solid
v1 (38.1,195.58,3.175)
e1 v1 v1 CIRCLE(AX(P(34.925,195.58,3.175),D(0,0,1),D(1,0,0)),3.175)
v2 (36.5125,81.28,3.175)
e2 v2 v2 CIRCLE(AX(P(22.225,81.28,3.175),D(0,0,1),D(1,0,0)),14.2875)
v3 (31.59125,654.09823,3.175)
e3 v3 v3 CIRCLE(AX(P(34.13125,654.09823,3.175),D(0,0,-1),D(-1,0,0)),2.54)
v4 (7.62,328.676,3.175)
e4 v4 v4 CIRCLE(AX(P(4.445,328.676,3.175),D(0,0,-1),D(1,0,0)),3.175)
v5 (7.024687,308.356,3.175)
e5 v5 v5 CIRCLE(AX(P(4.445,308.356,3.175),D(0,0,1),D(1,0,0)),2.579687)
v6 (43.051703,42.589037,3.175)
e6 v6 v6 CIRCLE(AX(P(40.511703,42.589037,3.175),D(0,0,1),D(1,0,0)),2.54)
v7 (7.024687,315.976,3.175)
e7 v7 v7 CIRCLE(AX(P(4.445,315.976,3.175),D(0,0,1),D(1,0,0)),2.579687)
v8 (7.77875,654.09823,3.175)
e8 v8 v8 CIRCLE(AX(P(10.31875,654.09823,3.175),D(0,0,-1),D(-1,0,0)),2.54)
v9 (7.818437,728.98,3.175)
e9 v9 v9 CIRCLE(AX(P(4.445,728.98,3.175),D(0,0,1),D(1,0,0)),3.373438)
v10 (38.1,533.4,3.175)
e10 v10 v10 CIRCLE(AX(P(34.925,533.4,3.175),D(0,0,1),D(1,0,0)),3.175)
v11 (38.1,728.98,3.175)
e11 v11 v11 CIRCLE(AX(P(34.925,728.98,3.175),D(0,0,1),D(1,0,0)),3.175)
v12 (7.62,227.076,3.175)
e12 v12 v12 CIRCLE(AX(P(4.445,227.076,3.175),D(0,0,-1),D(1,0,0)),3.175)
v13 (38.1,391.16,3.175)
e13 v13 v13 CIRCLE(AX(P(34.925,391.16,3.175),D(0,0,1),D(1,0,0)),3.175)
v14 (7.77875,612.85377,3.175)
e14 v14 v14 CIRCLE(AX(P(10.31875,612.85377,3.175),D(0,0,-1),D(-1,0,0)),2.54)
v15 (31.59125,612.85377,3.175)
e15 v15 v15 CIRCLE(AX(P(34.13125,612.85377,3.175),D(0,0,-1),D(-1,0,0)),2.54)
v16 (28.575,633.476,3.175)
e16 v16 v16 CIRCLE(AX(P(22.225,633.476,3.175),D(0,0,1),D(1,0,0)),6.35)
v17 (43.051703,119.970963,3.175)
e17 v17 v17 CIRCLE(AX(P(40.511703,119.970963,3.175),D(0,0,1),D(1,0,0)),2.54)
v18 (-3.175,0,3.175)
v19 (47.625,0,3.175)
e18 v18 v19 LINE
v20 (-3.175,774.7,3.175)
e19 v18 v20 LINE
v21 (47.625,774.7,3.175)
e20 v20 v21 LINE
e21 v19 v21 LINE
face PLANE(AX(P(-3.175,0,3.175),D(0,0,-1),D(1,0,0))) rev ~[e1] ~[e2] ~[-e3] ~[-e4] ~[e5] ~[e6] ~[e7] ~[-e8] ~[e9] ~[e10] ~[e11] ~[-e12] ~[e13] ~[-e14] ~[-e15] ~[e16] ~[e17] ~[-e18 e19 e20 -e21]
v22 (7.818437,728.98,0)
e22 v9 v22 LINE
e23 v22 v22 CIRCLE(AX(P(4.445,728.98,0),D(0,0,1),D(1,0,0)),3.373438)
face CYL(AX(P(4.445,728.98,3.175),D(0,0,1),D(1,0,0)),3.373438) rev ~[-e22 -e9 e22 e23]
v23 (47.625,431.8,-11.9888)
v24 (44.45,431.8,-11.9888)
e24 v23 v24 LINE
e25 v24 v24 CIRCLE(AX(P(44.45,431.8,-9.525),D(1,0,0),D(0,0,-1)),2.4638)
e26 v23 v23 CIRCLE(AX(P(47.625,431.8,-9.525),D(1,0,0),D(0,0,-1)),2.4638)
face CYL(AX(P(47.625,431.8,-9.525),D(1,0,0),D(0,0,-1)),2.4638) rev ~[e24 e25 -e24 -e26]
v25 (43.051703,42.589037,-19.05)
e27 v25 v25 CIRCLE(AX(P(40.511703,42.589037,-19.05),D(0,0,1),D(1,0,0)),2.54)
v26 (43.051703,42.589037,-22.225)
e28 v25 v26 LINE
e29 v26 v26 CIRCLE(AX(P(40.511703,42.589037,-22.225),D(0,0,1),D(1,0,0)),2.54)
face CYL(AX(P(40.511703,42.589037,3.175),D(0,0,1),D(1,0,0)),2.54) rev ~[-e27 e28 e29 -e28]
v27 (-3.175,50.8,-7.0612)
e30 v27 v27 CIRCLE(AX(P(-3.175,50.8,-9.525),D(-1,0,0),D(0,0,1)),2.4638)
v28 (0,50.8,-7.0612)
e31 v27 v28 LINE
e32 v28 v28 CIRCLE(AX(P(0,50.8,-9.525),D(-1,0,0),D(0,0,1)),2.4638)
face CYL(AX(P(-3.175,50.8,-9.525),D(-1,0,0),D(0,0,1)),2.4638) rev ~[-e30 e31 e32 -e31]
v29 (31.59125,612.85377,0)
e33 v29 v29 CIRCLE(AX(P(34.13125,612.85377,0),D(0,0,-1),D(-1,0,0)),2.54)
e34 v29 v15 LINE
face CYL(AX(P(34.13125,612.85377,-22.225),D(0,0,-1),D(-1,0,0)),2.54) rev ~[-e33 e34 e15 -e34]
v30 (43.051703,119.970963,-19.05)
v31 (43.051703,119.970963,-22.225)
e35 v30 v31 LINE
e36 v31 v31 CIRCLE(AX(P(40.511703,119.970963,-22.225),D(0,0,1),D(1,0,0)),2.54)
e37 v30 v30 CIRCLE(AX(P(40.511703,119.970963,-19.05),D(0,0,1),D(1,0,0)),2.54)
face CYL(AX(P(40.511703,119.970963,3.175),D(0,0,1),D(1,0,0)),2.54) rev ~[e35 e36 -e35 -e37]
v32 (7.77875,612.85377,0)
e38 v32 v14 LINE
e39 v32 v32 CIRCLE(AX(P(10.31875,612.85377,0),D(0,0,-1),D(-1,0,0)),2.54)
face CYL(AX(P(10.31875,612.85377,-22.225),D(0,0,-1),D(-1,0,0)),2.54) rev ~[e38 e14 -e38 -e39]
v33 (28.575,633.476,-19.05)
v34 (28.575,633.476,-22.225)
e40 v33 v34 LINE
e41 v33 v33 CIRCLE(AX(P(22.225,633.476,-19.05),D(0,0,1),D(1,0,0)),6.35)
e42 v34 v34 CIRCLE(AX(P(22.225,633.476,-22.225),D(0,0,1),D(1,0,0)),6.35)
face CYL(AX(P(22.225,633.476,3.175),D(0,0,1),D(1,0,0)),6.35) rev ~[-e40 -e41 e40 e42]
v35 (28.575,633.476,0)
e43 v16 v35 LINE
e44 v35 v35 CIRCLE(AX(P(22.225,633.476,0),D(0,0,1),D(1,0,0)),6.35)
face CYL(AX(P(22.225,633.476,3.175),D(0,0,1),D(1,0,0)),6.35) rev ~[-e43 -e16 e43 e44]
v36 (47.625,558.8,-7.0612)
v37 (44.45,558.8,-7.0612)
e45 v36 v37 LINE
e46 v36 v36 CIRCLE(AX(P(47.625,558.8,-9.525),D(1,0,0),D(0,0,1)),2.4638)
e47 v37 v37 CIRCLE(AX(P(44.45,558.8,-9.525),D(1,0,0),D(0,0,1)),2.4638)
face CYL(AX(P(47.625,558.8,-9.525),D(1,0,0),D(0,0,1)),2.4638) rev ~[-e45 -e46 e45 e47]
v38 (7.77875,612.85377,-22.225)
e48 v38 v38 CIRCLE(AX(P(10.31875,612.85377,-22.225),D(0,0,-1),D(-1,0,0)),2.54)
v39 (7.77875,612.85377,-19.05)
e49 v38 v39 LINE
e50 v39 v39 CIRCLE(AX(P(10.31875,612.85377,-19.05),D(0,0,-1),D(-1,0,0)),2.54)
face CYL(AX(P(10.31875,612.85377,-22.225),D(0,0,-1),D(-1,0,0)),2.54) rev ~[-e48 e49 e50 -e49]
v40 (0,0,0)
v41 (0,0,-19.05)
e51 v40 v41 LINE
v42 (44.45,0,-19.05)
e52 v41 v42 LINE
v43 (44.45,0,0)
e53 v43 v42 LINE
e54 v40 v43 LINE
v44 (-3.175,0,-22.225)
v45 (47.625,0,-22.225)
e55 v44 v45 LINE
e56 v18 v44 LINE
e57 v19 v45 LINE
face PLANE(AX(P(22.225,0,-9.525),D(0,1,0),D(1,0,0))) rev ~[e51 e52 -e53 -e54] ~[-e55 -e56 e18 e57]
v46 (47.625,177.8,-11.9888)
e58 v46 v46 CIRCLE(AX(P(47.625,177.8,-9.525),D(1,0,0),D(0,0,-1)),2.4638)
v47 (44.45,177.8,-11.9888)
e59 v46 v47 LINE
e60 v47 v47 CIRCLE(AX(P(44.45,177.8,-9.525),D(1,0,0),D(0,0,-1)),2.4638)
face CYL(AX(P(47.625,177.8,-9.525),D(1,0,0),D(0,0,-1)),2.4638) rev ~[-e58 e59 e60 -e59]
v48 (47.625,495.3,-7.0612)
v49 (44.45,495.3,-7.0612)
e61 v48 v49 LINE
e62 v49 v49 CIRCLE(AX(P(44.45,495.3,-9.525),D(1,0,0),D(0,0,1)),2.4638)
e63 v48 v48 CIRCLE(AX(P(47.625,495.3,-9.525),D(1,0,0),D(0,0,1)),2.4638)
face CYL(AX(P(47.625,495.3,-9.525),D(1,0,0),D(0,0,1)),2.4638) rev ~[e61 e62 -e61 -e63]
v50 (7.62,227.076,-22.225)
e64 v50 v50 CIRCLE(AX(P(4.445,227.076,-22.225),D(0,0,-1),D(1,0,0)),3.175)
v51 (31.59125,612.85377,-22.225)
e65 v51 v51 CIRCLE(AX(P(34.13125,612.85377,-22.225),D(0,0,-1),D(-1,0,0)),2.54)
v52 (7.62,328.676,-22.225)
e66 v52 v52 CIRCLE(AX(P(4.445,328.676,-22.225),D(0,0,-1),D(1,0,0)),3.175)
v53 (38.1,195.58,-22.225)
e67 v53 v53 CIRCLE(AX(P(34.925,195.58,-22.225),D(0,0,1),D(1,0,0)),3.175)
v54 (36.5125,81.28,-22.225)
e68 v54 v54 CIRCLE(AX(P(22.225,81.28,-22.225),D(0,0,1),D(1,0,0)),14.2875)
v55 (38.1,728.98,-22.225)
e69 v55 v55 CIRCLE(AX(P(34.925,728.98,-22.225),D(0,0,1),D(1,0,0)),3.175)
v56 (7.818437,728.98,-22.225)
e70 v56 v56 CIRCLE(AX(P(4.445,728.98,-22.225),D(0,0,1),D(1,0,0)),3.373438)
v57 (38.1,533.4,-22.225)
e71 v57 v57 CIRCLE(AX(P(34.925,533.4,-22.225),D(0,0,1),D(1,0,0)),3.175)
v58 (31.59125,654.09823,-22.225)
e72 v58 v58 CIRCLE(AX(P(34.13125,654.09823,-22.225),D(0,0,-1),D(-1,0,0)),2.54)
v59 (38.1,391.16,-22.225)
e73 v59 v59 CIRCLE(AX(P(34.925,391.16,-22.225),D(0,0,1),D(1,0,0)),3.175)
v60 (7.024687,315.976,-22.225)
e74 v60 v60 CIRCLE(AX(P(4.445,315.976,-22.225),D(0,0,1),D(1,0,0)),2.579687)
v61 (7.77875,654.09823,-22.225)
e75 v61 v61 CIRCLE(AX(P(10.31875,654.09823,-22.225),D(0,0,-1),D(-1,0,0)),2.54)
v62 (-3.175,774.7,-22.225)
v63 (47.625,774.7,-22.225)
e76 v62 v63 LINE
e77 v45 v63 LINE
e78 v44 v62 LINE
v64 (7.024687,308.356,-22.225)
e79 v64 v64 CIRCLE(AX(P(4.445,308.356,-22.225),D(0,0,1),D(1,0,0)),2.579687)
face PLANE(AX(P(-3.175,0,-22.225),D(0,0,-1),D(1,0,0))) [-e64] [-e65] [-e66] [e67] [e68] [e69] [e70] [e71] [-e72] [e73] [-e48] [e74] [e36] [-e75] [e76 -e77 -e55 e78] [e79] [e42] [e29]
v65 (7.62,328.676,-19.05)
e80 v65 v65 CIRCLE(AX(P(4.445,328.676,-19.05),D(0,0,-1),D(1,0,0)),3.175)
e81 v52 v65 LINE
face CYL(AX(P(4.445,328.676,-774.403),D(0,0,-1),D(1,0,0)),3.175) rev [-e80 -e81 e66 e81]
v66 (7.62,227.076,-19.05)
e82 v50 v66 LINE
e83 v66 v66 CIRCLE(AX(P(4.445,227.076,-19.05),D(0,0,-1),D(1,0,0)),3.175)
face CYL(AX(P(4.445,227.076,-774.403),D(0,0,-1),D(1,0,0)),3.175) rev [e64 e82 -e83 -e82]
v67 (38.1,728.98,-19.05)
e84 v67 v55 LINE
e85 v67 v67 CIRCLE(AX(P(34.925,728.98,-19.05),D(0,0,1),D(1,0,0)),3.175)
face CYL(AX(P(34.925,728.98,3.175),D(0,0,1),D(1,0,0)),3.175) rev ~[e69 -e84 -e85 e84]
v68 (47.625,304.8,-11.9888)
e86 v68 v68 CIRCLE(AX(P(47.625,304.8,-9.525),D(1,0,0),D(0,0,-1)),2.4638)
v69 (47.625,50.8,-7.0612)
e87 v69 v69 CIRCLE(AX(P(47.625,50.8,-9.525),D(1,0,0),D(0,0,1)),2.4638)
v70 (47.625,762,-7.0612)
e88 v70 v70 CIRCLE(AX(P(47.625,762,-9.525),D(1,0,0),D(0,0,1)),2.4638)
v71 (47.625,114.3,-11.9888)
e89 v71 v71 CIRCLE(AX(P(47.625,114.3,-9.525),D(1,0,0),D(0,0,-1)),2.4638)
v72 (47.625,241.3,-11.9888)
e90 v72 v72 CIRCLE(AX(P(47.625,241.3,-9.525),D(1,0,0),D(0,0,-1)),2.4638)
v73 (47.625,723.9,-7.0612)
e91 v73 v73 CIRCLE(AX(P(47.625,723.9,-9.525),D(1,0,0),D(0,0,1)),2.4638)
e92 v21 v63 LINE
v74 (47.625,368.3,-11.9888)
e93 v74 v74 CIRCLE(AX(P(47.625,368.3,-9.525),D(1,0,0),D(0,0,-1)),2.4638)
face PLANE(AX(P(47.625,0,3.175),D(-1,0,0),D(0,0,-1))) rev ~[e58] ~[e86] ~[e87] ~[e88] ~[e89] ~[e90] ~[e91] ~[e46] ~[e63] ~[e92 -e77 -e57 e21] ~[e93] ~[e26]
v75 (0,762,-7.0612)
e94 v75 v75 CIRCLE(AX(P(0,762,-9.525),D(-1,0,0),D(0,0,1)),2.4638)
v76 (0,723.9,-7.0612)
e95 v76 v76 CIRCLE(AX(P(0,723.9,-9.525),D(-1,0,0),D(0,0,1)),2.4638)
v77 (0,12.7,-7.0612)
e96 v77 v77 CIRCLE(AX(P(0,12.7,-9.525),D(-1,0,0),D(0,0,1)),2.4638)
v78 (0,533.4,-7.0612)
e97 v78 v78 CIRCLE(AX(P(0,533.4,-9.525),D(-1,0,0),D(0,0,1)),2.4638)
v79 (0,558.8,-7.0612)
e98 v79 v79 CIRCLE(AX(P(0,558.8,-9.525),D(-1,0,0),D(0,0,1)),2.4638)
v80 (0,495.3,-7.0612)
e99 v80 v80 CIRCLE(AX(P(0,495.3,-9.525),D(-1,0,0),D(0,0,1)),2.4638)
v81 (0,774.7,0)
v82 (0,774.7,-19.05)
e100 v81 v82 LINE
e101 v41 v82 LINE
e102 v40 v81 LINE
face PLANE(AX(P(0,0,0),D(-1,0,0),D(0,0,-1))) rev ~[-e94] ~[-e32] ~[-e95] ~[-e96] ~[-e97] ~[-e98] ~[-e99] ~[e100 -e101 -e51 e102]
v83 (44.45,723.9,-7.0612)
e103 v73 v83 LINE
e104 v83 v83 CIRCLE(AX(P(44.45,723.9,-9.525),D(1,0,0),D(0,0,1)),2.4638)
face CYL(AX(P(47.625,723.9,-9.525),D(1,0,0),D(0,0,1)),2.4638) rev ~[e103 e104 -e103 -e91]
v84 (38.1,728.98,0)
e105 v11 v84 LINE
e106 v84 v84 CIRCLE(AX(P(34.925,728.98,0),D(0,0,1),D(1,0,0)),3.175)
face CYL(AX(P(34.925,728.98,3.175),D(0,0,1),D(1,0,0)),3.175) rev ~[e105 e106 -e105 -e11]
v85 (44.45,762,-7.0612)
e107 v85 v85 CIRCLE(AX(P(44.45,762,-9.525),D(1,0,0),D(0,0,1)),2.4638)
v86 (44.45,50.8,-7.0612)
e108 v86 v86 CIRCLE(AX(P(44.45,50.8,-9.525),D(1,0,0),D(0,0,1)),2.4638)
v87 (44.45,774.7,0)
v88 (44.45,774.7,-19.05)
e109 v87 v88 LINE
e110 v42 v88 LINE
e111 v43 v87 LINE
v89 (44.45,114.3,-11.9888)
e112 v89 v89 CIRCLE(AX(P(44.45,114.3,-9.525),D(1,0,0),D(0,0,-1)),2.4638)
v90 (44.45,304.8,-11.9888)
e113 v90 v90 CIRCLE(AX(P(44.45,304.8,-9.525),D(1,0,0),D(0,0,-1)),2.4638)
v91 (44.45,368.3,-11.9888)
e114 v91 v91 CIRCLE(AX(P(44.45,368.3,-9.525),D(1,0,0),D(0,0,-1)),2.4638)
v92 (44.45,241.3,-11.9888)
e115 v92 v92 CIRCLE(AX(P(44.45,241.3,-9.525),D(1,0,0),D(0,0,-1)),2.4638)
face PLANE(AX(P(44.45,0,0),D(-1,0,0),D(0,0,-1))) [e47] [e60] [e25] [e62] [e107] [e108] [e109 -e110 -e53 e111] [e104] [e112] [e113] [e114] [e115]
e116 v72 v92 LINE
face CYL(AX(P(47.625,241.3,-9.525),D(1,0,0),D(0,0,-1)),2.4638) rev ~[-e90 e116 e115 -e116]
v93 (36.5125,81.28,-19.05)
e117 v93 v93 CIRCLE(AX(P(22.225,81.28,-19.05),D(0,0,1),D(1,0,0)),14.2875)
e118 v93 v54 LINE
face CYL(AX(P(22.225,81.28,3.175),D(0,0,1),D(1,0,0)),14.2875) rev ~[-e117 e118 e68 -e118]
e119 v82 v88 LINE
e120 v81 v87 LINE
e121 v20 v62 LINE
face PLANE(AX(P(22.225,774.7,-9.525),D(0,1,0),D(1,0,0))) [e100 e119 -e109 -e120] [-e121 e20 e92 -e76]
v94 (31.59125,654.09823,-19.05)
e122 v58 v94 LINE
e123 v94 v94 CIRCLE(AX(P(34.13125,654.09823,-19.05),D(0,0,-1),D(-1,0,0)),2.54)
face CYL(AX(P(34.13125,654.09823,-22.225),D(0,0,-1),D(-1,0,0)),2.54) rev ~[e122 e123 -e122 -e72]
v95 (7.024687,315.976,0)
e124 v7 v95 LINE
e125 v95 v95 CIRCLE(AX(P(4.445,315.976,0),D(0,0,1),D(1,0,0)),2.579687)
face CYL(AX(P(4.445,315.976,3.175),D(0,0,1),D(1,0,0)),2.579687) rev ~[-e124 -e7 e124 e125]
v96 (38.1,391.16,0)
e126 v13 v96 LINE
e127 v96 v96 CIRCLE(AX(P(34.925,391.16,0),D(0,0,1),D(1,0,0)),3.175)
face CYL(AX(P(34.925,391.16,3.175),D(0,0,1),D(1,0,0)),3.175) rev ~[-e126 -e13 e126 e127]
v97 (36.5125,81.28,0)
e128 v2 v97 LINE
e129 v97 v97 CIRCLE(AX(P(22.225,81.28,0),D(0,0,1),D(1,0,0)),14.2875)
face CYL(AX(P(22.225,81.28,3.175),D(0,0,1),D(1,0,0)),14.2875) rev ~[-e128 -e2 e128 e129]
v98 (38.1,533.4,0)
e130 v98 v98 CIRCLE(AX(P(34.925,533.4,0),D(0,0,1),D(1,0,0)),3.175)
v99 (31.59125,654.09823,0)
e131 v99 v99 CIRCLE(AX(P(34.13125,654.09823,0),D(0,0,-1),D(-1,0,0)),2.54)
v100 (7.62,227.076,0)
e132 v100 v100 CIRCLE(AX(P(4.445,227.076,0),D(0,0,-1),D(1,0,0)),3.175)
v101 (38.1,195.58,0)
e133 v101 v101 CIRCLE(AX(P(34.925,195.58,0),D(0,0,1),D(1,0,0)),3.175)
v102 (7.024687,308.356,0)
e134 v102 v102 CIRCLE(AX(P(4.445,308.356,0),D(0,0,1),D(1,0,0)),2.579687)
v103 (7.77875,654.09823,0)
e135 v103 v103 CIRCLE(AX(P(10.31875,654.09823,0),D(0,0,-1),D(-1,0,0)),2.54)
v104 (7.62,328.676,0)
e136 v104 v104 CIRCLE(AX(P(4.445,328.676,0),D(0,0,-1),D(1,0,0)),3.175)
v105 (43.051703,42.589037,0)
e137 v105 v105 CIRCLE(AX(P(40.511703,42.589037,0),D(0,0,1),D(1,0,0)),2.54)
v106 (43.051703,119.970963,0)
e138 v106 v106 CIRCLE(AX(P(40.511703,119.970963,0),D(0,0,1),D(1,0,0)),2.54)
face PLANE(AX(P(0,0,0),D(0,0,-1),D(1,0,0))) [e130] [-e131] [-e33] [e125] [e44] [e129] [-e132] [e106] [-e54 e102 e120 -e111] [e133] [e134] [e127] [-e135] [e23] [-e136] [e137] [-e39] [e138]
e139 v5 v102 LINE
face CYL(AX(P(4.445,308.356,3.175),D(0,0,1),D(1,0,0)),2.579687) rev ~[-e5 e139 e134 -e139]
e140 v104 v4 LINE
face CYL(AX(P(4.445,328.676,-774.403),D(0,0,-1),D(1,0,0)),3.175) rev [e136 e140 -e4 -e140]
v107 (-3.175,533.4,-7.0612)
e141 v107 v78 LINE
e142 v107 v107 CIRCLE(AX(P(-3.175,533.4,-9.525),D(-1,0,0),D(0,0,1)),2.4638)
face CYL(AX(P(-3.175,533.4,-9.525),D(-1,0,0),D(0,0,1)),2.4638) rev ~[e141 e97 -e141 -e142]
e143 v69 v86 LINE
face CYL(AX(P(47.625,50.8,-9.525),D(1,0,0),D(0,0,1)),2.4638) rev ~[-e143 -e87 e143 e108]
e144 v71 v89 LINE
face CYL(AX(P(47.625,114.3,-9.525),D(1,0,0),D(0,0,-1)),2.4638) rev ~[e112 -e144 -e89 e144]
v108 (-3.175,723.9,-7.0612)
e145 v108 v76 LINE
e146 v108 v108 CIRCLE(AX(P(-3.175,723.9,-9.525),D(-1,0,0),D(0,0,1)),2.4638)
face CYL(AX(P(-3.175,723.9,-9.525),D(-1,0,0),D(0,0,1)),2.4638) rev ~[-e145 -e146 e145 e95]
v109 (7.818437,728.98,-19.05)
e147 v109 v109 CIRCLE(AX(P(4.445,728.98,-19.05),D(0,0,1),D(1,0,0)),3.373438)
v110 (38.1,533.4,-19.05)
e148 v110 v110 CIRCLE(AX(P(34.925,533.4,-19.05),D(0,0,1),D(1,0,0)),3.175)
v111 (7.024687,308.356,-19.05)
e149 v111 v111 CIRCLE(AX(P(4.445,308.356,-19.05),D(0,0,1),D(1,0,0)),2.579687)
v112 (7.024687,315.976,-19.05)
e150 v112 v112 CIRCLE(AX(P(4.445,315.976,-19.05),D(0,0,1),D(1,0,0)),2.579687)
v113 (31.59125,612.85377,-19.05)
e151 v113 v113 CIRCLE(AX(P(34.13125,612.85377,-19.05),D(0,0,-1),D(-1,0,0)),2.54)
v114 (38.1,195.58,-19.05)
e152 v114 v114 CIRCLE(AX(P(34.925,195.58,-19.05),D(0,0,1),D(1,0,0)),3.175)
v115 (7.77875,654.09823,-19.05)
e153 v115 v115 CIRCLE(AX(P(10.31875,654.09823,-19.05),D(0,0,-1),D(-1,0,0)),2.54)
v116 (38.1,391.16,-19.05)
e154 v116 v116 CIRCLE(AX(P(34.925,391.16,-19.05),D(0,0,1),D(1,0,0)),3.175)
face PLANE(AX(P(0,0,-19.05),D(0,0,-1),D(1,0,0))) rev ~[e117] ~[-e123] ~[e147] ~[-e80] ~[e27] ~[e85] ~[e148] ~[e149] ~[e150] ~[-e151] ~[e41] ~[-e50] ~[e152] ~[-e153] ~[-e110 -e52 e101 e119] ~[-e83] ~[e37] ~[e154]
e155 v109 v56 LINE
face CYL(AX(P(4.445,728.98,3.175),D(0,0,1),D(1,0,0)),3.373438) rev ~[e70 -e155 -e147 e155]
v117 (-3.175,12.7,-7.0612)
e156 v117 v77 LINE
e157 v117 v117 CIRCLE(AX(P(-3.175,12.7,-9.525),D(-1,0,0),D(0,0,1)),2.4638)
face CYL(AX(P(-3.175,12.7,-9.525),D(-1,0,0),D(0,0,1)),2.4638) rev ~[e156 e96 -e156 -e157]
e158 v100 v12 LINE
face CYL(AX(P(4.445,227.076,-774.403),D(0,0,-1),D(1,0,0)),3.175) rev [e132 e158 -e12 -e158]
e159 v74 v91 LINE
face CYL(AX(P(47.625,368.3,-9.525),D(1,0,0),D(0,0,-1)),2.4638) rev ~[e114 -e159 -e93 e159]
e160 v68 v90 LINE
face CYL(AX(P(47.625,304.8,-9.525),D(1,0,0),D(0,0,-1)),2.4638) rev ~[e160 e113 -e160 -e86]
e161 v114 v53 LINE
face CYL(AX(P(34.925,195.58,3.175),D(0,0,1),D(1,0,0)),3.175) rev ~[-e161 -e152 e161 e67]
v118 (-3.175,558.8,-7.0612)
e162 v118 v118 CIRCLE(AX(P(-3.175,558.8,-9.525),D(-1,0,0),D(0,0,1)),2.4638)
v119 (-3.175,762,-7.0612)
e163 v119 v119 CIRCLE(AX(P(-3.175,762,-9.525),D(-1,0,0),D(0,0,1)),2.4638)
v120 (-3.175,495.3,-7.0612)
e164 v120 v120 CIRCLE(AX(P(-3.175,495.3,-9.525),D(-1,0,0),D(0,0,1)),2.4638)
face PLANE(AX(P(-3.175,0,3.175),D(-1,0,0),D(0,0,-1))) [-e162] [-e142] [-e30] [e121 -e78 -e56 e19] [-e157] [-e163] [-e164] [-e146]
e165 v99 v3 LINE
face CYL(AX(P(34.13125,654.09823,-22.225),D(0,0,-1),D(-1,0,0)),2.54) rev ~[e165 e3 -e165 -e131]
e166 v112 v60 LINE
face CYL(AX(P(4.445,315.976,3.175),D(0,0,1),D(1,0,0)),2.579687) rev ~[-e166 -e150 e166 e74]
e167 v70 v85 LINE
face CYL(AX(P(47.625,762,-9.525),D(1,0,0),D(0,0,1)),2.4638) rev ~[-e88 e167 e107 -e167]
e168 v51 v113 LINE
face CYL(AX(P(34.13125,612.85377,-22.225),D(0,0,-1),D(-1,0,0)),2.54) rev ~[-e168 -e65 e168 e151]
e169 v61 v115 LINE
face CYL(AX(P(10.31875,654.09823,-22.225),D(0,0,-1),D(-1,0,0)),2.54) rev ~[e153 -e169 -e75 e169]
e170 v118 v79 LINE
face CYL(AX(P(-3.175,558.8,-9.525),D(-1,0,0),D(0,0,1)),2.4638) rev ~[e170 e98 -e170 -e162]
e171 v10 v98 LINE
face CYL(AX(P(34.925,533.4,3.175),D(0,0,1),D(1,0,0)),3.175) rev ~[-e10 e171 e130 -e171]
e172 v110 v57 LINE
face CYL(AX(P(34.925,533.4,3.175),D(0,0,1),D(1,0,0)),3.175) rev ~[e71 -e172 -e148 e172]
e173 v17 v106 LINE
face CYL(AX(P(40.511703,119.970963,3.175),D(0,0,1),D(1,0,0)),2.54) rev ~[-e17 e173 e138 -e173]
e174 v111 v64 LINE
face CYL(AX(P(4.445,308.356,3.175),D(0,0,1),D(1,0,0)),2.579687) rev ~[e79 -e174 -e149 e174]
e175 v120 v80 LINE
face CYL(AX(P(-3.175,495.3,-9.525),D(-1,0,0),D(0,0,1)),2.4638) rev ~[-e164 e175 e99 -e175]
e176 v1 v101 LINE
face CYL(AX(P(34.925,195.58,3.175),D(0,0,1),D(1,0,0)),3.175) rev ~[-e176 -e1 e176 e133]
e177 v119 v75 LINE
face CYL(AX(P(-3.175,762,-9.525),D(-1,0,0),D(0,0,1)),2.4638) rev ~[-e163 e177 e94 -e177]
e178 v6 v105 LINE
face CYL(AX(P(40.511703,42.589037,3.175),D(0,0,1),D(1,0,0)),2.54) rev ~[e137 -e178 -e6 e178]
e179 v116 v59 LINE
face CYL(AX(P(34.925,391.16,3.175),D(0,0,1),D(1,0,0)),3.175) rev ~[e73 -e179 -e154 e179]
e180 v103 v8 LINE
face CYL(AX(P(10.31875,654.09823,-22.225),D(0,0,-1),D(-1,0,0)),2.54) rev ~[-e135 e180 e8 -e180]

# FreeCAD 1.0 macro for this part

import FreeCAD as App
import Part
import Sketcher

V = App.Vector
Q = App.Units.Quantity

doc = App.newDocument("Part")
params = doc.addObject("Spreadsheet::Sheet", "Params")
for row, (alias, value) in enumerate([
    ("sketch1_width", "2 in"),
    ("sketch1_height", "1 in"),
    ("sketch1_width2", "1.75 in"),
    ("sketch1_height2", "0.75 in"),
    ("pad1_length", "30.5 in"),
    ("sketch2_diameter", "1.125 in"),
    ("sketch3_diameter", "0.5 in"),
    ("sketch4_diameter", "0.2 in"),
    ("sketch5_diameter", "0.2 in"),
    ("sketch6_diameter", "0.25 in"),
    ("sketch7_diameter", "0.203125 in"),
    ("sketch8_diameter", "0.25 in"),
    ("sketch8_diameter2", "0.265625 in"),
    ("sketch9_diameter", "0.194 in"),
    ("sketch10_diameter", "0.194 in"),
    ("sketch11_diameter", "0.194 in"),
    ("sketch12_diameter", "0.194 in"),
    ("sketch13_diameter", "0.194 in"),
    ("sketch14_diameter", "0.194 in"),
    ("sketch15_diameter", "0.194 in"),
    ("sketch16_diameter", "0.194 in"),
    ("sketch17_diameter", "0.194 in"),
    ("sketch18_diameter", "0.194 in"),
    ("sketch19_diameter", "0.194 in"),
    ("sketch20_diameter", "0.194 in"),
    ("sketch21_diameter", "0.194 in"),
    ("sketch22_diameter", "0.194 in"),
    ("sketch23_diameter", "0.194 in"),
    ("sketch24_diameter", "0.194 in"),
    ("sketch25_diameter", "0.194 in"),
    ("sketch26_diameter", "0.194 in"),
], start=1):
    params.set(f"A{row}", alias)
    params.set(f"B{row}", "=" + value)
    params.setAlias(f"B{row}", alias)

body = doc.addObject("PartDesign::Body", "Body")

# Sketch on XZ plane
sketch1 = doc.addObject("Sketcher::SketchObject", "Sketch")
body.addObject(sketch1)
sketch1.AttachmentSupport = (doc.XZ_Plane, [""])
sketch1.MapMode = "FlatFace"
sketch1.addGeometry(Part.LineSegment(V(-3.175, -22.225, 0), V(-3.175, 3.175, 0)), False)
sketch1.addGeometry(Part.LineSegment(V(-3.175, 3.175, 0), V(47.625, 3.175, 0)), False)
sketch1.addGeometry(Part.LineSegment(V(47.625, 3.175, 0), V(47.625, -22.225, 0)), False)
sketch1.addGeometry(Part.LineSegment(V(47.625, -22.225, 0), V(-3.175, -22.225, 0)), False)
sketch1.addGeometry(Part.LineSegment(V(44.45, 0, 0), V(0, 0, 0)), False)
sketch1.addGeometry(Part.LineSegment(V(0, 0, 0), V(0, -19.05, 0)), False)
sketch1.addGeometry(Part.LineSegment(V(0, -19.05, 0), V(44.45, -19.05, 0)), False)
sketch1.addGeometry(Part.LineSegment(V(44.45, -19.05, 0), V(44.45, 0, 0)), False)
sketch1.addConstraint(Sketcher.Constraint("Coincident", 0, 2, 1, 1))
sketch1.addConstraint(Sketcher.Constraint("Coincident", 1, 2, 2, 1))
sketch1.addConstraint(Sketcher.Constraint("Coincident", 2, 2, 3, 1))
sketch1.addConstraint(Sketcher.Constraint("Coincident", 3, 2, 0, 1))
sketch1.addConstraint(Sketcher.Constraint("Coincident", 4, 2, 5, 1))
sketch1.addConstraint(Sketcher.Constraint("Coincident", 5, 2, 6, 1))
sketch1.addConstraint(Sketcher.Constraint("Coincident", 6, 2, 7, 1))
sketch1.addConstraint(Sketcher.Constraint("Coincident", 7, 2, 4, 1))
sketch1.addConstraint(Sketcher.Constraint("Vertical", 0))
sketch1.addConstraint(Sketcher.Constraint("Horizontal", 1))
sketch1.addConstraint(Sketcher.Constraint("Vertical", 2))
sketch1.addConstraint(Sketcher.Constraint("Horizontal", 3))
sketch1.addConstraint(Sketcher.Constraint("Horizontal", 4))
sketch1.addConstraint(Sketcher.Constraint("Vertical", 5))
sketch1.addConstraint(Sketcher.Constraint("Horizontal", 6))
sketch1.addConstraint(Sketcher.Constraint("Vertical", 7))
sketch1.addConstraint(Sketcher.Constraint("Coincident", 4, 2, -1, 1))
sketch1.addConstraint(Sketcher.Constraint("DistanceX", 1, 1, 1, 2, Q("2 in")))
sketch1.addConstraint(Sketcher.Constraint("DistanceY", 0, 1, 0, 2, Q("1 in")))
sketch1.addConstraint(Sketcher.Constraint("DistanceX", 4, 2, 4, 1, Q("1.75 in")))
sketch1.addConstraint(Sketcher.Constraint("DistanceY", 5, 2, 5, 1, Q("0.75 in")))
sketch1.addConstraint(Sketcher.Constraint("DistanceX", 0, 2, -1, 1, Q("0.125 in")))
sketch1.addConstraint(Sketcher.Constraint("DistanceY", -1, 1, 0, 2, Q("0.125 in")))
sketch1.setExpression("Constraints[17]", "Params.sketch1_width")
sketch1.setExpression("Constraints[18]", "Params.sketch1_height")
sketch1.setExpression("Constraints[19]", "Params.sketch1_width2")
sketch1.setExpression("Constraints[20]", "Params.sketch1_height2")
pad1 = doc.addObject("PartDesign::Pad", "Pad")
body.addObject(pad1)
pad1.Profile = sketch1
pad1.setExpression("Length", "Params.pad1_length")
pad1.Reversed = True

# Sketch on XY plane
sketch2 = doc.addObject("Sketcher::SketchObject", "Sketch001")
body.addObject(sketch2)
sketch2.AttachmentSupport = (doc.XY_Plane, [""])
sketch2.MapMode = "FlatFace"
sketch2.AttachmentOffset = App.Placement(V(0, 0, 0.125 * 25.4), App.Rotation())
sketch2.addGeometry(Part.Circle(V(22.225, 81.28, 0), V(0, 0, 1), 14.2875), False)
sketch2.addConstraint(Sketcher.Constraint("Diameter", 0, Q("1.125 in")))
sketch2.addConstraint(Sketcher.Constraint("DistanceY", -1, 1, 0, 3, Q("3.2 in")))
sketch2.addConstraint(Sketcher.Constraint("DistanceX", -1, 1, 0, 3, Q("0.875 in")))
sketch2.setExpression("Constraints[0]", "Params.sketch2_diameter")
pocket1 = doc.addObject("PartDesign::Pocket", "Pocket")
body.addObject(pocket1)
pocket1.Profile = sketch2
pocket1.Type = "ThroughAll"

# Sketch on XY plane
sketch3 = doc.addObject("Sketcher::SketchObject", "Sketch002")
body.addObject(sketch3)
sketch3.AttachmentSupport = (doc.XY_Plane, [""])
sketch3.MapMode = "FlatFace"
sketch3.AttachmentOffset = App.Placement(V(0, 0, 0.125 * 25.4), App.Rotation())
sketch3.addGeometry(Part.Circle(V(22.225, 633.476, 0), V(0, 0, 1), 6.35), False)
sketch3.addConstraint(Sketcher.Constraint("Diameter", 0, Q("0.5 in")))
sketch3.addConstraint(Sketcher.Constraint("DistanceY", -1, 1, 0, 3, Q("24.94 in")))
sketch3.addConstraint(Sketcher.Constraint("DistanceX", -1, 1, 0, 3, Q("0.875 in")))
sketch3.setExpression("Constraints[0]", "Params.sketch3_diameter")
pocket2 = doc.addObject("PartDesign::Pocket", "Pocket001")
body.addObject(pocket2)
pocket2.Profile = sketch3
pocket2.Type = "ThroughAll"

# Sketch on XY plane
sketch4 = doc.addObject("Sketcher::SketchObject", "Sketch003")
body.addObject(sketch4)
sketch4.AttachmentSupport = (doc.XY_Plane, [""])
sketch4.MapMode = "FlatFace"
sketch4.AttachmentOffset = App.Placement(V(0, 0, 0.125 * 25.4), App.Rotation())
sketch4.addGeometry(Part.Circle(V(40.511703, 42.589037, 0), V(0, 0, 1), 2.54), False)
sketch4.addGeometry(Part.Circle(V(40.511703, 119.970963, 0), V(0, 0, 1), 2.54), False)
sketch4.addConstraint(Sketcher.Constraint("Equal", 0, 1))
sketch4.addConstraint(Sketcher.Constraint("Vertical", 0, 3, 1, 3))
sketch4.addConstraint(Sketcher.Constraint("Diameter", 0, Q("0.2 in")))
sketch4.addConstraint(Sketcher.Constraint("DistanceX", -1, 1, 0, 3, Q("40.511703 mm")))
sketch4.addConstraint(Sketcher.Constraint("DistanceY", -1, 1, 0, 3, Q("42.589037 mm")))
sketch4.addConstraint(Sketcher.Constraint("DistanceY", -1, 1, 1, 3, Q("119.970963 mm")))
sketch4.setExpression("Constraints[2]", "Params.sketch4_diameter")
pocket3 = doc.addObject("PartDesign::Pocket", "Pocket002")
body.addObject(pocket3)
pocket3.Profile = sketch4
pocket3.Type = "ThroughAll"

# Sketch on XY plane
sketch5 = doc.addObject("Sketcher::SketchObject", "Sketch004")
body.addObject(sketch5)
sketch5.AttachmentSupport = (doc.XY_Plane, [""])
sketch5.MapMode = "FlatFace"
sketch5.AttachmentOffset = App.Placement(V(0, 0, -0.875 * 25.4), App.Rotation())
sketch5.addGeometry(Part.Circle(V(10.31875, 612.85377, 0), V(0, 0, 1), 2.54), False)
sketch5.addGeometry(Part.Circle(V(34.13125, 612.85377, 0), V(0, 0, 1), 2.54), False)
sketch5.addGeometry(Part.Circle(V(10.31875, 654.09823, 0), V(0, 0, 1), 2.54), False)
sketch5.addGeometry(Part.Circle(V(34.13125, 654.09823, 0), V(0, 0, 1), 2.54), False)
sketch5.addConstraint(Sketcher.Constraint("Equal", 0, 1))
sketch5.addConstraint(Sketcher.Constraint("Equal", 1, 2))
sketch5.addConstraint(Sketcher.Constraint("Equal", 2, 3))
sketch5.addConstraint(Sketcher.Constraint("Horizontal", 0, 3, 1, 3))
sketch5.addConstraint(Sketcher.Constraint("Horizontal", 2, 3, 3, 3))
sketch5.addConstraint(Sketcher.Constraint("Vertical", 0, 3, 2, 3))
sketch5.addConstraint(Sketcher.Constraint("Vertical", 1, 3, 3, 3))
sketch5.addConstraint(Sketcher.Constraint("Diameter", 0, Q("0.2 in")))
sketch5.addConstraint(Sketcher.Constraint("DistanceX", -1, 1, 0, 3, Q("0.40625 in")))
sketch5.addConstraint(Sketcher.Constraint("DistanceX", -1, 1, 1, 3, Q("1.34375 in")))
sketch5.addConstraint(Sketcher.Constraint("DistanceY", -1, 1, 0, 3, Q("612.85377 mm")))
sketch5.addConstraint(Sketcher.Constraint("DistanceY", -1, 1, 2, 3, Q("654.09823 mm")))
sketch5.setExpression("Constraints[7]", "Params.sketch5_diameter")
pocket4 = doc.addObject("PartDesign::Pocket", "Pocket003")
body.addObject(pocket4)
pocket4.Profile = sketch5
pocket4.Type = "ThroughAll"
pocket4.Reversed = True

# Sketch on XY plane
sketch6 = doc.addObject("Sketcher::SketchObject", "Sketch005")
body.addObject(sketch6)
sketch6.AttachmentSupport = (doc.XY_Plane, [""])
sketch6.MapMode = "FlatFace"
sketch6.AttachmentOffset = App.Placement(V(0, 0, 0.125 * 25.4), App.Rotation())
sketch6.addGeometry(Part.Circle(V(4.445, 227.076, 0), V(0, 0, 1), 3.175), False)
sketch6.addGeometry(Part.Circle(V(4.445, 328.676, 0), V(0, 0, 1), 3.175), False)
sketch6.addConstraint(Sketcher.Constraint("Equal", 0, 1))
sketch6.addConstraint(Sketcher.Constraint("Vertical", 0, 3, 1, 3))
sketch6.addConstraint(Sketcher.Constraint("Diameter", 0, Q("0.25 in")))
sketch6.addConstraint(Sketcher.Constraint("DistanceY", 0, 3, 1, 3, Q("4 in")))
sketch6.addConstraint(Sketcher.Constraint("DistanceY", -1, 1, 0, 3, Q("8.94 in")))
sketch6.addConstraint(Sketcher.Constraint("DistanceX", -1, 1, 0, 3, Q("0.175 in")))
sketch6.setExpression("Constraints[2]", "Params.sketch6_diameter")
pocket5 = doc.addObject("PartDesign::Pocket", "Pocket004")
body.addObject(pocket5)
pocket5.Profile = sketch6
pocket5.Type = "ThroughAll"
pocket5.Midplane = True

# Sketch on XY plane
sketch7 = doc.addObject("Sketcher::SketchObject", "Sketch006")
body.addObject(sketch7)
sketch7.AttachmentSupport = (doc.XY_Plane, [""])
sketch7.MapMode = "FlatFace"
sketch7.AttachmentOffset = App.Placement(V(0, 0, 0.125 * 25.4), App.Rotation())
sketch7.addGeometry(Part.Circle(V(4.445, 315.976, 0), V(0, 0, 1), 2.579687), False)
sketch7.addGeometry(Part.Circle(V(4.445, 308.356, 0), V(0, 0, 1), 2.579687), False)
sketch7.addConstraint(Sketcher.Constraint("Equal", 0, 1))
sketch7.addConstraint(Sketcher.Constraint("Vertical", 0, 3, 1, 3))
sketch7.addConstraint(Sketcher.Constraint("Diameter", 0, Q("0.203125 in")))
sketch7.addConstraint(Sketcher.Constraint("DistanceY", 1, 3, 0, 3, Q("0.3 in")))
sketch7.addConstraint(Sketcher.Constraint("DistanceY", -1, 1, 0, 3, Q("12.44 in")))
sketch7.addConstraint(Sketcher.Constraint("DistanceX", -1, 1, 0, 3, Q("0.175 in")))
sketch7.setExpression("Constraints[2]", "Params.sketch7_diameter")
pocket6 = doc.addObject("PartDesign::Pocket", "Pocket005")
body.addObject(pocket6)
pocket6.Profile = sketch7
pocket6.Type = "ThroughAll"

# Sketch on XY plane
sketch8 = doc.addObject("Sketcher::SketchObject", "Sketch007")
body.addObject(sketch8)
sketch8.AttachmentSupport = (doc.XY_Plane, [""])
sketch8.MapMode = "FlatFace"
sketch8.AttachmentOffset = App.Placement(V(0, 0, 0.125 * 25.4), App.Rotation())
sketch8.addGeometry(Part.Circle(V(34.925, 195.58, 0), V(0, 0, 1), 3.175), False)
sketch8.addGeometry(Part.Circle(V(34.925, 391.16, 0), V(0, 0, 1), 3.175), False)
sketch8.addGeometry(Part.Circle(V(34.925, 533.4, 0), V(0, 0, 1), 3.175), False)
sketch8.addGeometry(Part.Circle(V(34.925, 728.98, 0), V(0, 0, 1), 3.175), False)
sketch8.addGeometry(Part.Circle(V(4.445, 728.98, 0), V(0, 0, 1), 3.373438), False)
sketch8.addConstraint(Sketcher.Constraint("Equal", 0, 1))
sketch8.addConstraint(Sketcher.Constraint("Equal", 1, 2))
sketch8.addConstraint(Sketcher.Constraint("Equal", 2, 3))
sketch8.addConstraint(Sketcher.Constraint("Horizontal", 3, 3, 4, 3))
sketch8.addConstraint(Sketcher.Constraint("Vertical", 0, 3, 1, 3))
sketch8.addConstraint(Sketcher.Constraint("Vertical", 1, 3, 2, 3))
sketch8.addConstraint(Sketcher.Constraint("Vertical", 2, 3, 3, 3))
sketch8.addConstraint(Sketcher.Constraint("Diameter", 0, Q("0.25 in")))
sketch8.addConstraint(Sketcher.Constraint("Diameter", 4, Q("0.265625 in")))
sketch8.addConstraint(Sketcher.Constraint("DistanceY", -1, 1, 2, 3, Q("21 in")))
sketch8.addConstraint(Sketcher.Constraint("DistanceY", 0, 3, 3, 3, Q("21 in")))
sketch8.addConstraint(Sketcher.Constraint("DistanceY", -1, 1, 0, 3, Q("7.7 in")))
sketch8.addConstraint(Sketcher.Constraint("DistanceY", -1, 1, 1, 3, Q("15.4 in")))
sketch8.addConstraint(Sketcher.Constraint("DistanceX", 4, 3, 3, 3, Q("1.2 in")))
sketch8.addConstraint(Sketcher.Constraint("DistanceX", -1, 1, 0, 3, Q("1.375 in")))
sketch8.setExpression("Constraints[7]", "Params.sketch8_diameter")
sketch8.setExpression("Constraints[8]", "Params.sketch8_diameter2")
pocket7 = doc.addObject("PartDesign::Pocket", "Pocket006")
body.addObject(pocket7)
pocket7.Profile = sketch8
pocket7.Type = "ThroughAll"

# Sketch on YZ plane
sketch9 = doc.addObject("Sketcher::SketchObject", "Sketch008")
body.addObject(sketch9)
sketch9.AttachmentSupport = (doc.YZ_Plane, [""])
sketch9.MapMode = "FlatFace"
sketch9.AttachmentOffset = App.Placement(V(0, 0, -0.125 * 25.4), App.Rotation())
sketch9.addGeometry(Part.Circle(V(762, -9.525, 0), V(0, 0, 1), 2.4638), False)
sketch9.addConstraint(Sketcher.Constraint("Diameter", 0, Q("0.194 in")))
sketch9.addConstraint(Sketcher.Constraint("DistanceX", -1, 1, 0, 3, Q("30 in")))
sketch9.addConstraint(Sketcher.Constraint("DistanceY", 0, 3, -1, 1, Q("0.375 in")))
sketch9.setExpression("Constraints[0]", "Params.sketch9_diameter")
pocket8 = doc.addObject("PartDesign::Pocket", "Pocket007")
body.addObject(pocket8)
pocket8.Profile = sketch9
pocket8.Type = "UpToFirst"
pocket8.Reversed = True

# Sketch on YZ plane
sketch10 = doc.addObject("Sketcher::SketchObject", "Sketch009")
body.addObject(sketch10)
sketch10.AttachmentSupport = (doc.YZ_Plane, [""])
sketch10.MapMode = "FlatFace"
sketch10.AttachmentOffset = App.Placement(V(0, 0, -0.125 * 25.4), App.Rotation())
sketch10.addGeometry(Part.Circle(V(723.9, -9.525, 0), V(0, 0, 1), 2.4638), False)
sketch10.addConstraint(Sketcher.Constraint("Diameter", 0, Q("0.194 in")))
sketch10.addConstraint(Sketcher.Constraint("DistanceX", -1, 1, 0, 3, Q("28.5 in")))
sketch10.addConstraint(Sketcher.Constraint("DistanceY", 0, 3, -1, 1, Q("0.375 in")))
sketch10.setExpression("Constraints[0]", "Params.sketch10_diameter")
pocket9 = doc.addObject("PartDesign::Pocket", "Pocket008")
body.addObject(pocket9)
pocket9.Profile = sketch10
pocket9.Type = "UpToFirst"
pocket9.Reversed = True

# Sketch on YZ plane
sketch11 = doc.addObject("Sketcher::SketchObject", "Sketch010")
body.addObject(sketch11)
sketch11.AttachmentSupport = (doc.YZ_Plane, [""])
sketch11.MapMode = "FlatFace"
sketch11.AttachmentOffset = App.Placement(V(0, 0, -0.125 * 25.4), App.Rotation())
sketch11.addGeometry(Part.Circle(V(558.8, -9.525, 0), V(0, 0, 1), 2.4638), False)
sketch11.addConstraint(Sketcher.Constraint("Diameter", 0, Q("0.194 in")))
sketch11.addConstraint(Sketcher.Constraint("DistanceX", -1, 1, 0, 3, Q("22 in")))
sketch11.addConstraint(Sketcher.Constraint("DistanceY", 0, 3, -1, 1, Q("0.375 in")))
sketch11.setExpression("Constraints[0]", "Params.sketch11_diameter")
pocket10 = doc.addObject("PartDesign::Pocket", "Pocket009")
body.addObject(pocket10)
pocket10.Profile = sketch11
pocket10.Type = "UpToFirst"
pocket10.Reversed = True

# Sketch on YZ plane
sketch12 = doc.addObject("Sketcher::SketchObject", "Sketch011")
body.addObject(sketch12)
sketch12.AttachmentSupport = (doc.YZ_Plane, [""])
sketch12.MapMode = "FlatFace"
sketch12.AttachmentOffset = App.Placement(V(0, 0, -0.125 * 25.4), App.Rotation())
sketch12.addGeometry(Part.Circle(V(533.4, -9.525, 0), V(0, 0, 1), 2.4638), False)
sketch12.addConstraint(Sketcher.Constraint("Diameter", 0, Q("0.194 in")))
sketch12.addConstraint(Sketcher.Constraint("DistanceX", -1, 1, 0, 3, Q("21 in")))
sketch12.addConstraint(Sketcher.Constraint("DistanceY", 0, 3, -1, 1, Q("0.375 in")))
sketch12.setExpression("Constraints[0]", "Params.sketch12_diameter")
pocket11 = doc.addObject("PartDesign::Pocket", "Pocket010")
body.addObject(pocket11)
pocket11.Profile = sketch12
pocket11.Type = "UpToFirst"
pocket11.Reversed = True

# Sketch on YZ plane
sketch13 = doc.addObject("Sketcher::SketchObject", "Sketch012")
body.addObject(sketch13)
sketch13.AttachmentSupport = (doc.YZ_Plane, [""])
sketch13.MapMode = "FlatFace"
sketch13.AttachmentOffset = App.Placement(V(0, 0, -0.125 * 25.4), App.Rotation())
sketch13.addGeometry(Part.Circle(V(495.3, -9.525, 0), V(0, 0, 1), 2.4638), False)
sketch13.addConstraint(Sketcher.Constraint("Diameter", 0, Q("0.194 in")))
sketch13.addConstraint(Sketcher.Constraint("DistanceX", -1, 1, 0, 3, Q("19.5 in")))
sketch13.addConstraint(Sketcher.Constraint("DistanceY", 0, 3, -1, 1, Q("0.375 in")))
sketch13.setExpression("Constraints[0]", "Params.sketch13_diameter")
pocket12 = doc.addObject("PartDesign::Pocket", "Pocket011")
body.addObject(pocket12)
pocket12.Profile = sketch13
pocket12.Type = "UpToFirst"
pocket12.Reversed = True

# Sketch on YZ plane
sketch14 = doc.addObject("Sketcher::SketchObject", "Sketch013")
body.addObject(sketch14)
sketch14.AttachmentSupport = (doc.YZ_Plane, [""])
sketch14.MapMode = "FlatFace"
sketch14.AttachmentOffset = App.Placement(V(0, 0, -0.125 * 25.4), App.Rotation())
sketch14.addGeometry(Part.Circle(V(50.8, -9.525, 0), V(0, 0, 1), 2.4638), False)
sketch14.addConstraint(Sketcher.Constraint("Diameter", 0, Q("0.194 in")))
sketch14.addConstraint(Sketcher.Constraint("DistanceX", -1, 1, 0, 3, Q("2 in")))
sketch14.addConstraint(Sketcher.Constraint("DistanceY", 0, 3, -1, 1, Q("0.375 in")))
sketch14.setExpression("Constraints[0]", "Params.sketch14_diameter")
pocket13 = doc.addObject("PartDesign::Pocket", "Pocket012")
body.addObject(pocket13)
pocket13.Profile = sketch14
pocket13.Type = "UpToFirst"
pocket13.Reversed = True

# Sketch on YZ plane
sketch15 = doc.addObject("Sketcher::SketchObject", "Sketch014")
body.addObject(sketch15)
sketch15.AttachmentSupport = (doc.YZ_Plane, [""])
sketch15.MapMode = "FlatFace"
sketch15.AttachmentOffset = App.Placement(V(0, 0, -0.125 * 25.4), App.Rotation())
sketch15.addGeometry(Part.Circle(V(12.7, -9.525, 0), V(0, 0, 1), 2.4638), False)
sketch15.addConstraint(Sketcher.Constraint("Diameter", 0, Q("0.194 in")))
sketch15.addConstraint(Sketcher.Constraint("DistanceX", -1, 1, 0, 3, Q("0.5 in")))
sketch15.addConstraint(Sketcher.Constraint("DistanceY", 0, 3, -1, 1, Q("0.375 in")))
sketch15.setExpression("Constraints[0]", "Params.sketch15_diameter")
pocket14 = doc.addObject("PartDesign::Pocket", "Pocket013")
body.addObject(pocket14)
pocket14.Profile = sketch15
pocket14.Type = "UpToFirst"
pocket14.Reversed = True

# Sketch on YZ plane
sketch16 = doc.addObject("Sketcher::SketchObject", "Sketch015")
body.addObject(sketch16)
sketch16.AttachmentSupport = (doc.YZ_Plane, [""])
sketch16.MapMode = "FlatFace"
sketch16.AttachmentOffset = App.Placement(V(0, 0, 1.875 * 25.4), App.Rotation())
sketch16.addGeometry(Part.Circle(V(50.8, -9.525, 0), V(0, 0, 1), 2.4638), False)
sketch16.addConstraint(Sketcher.Constraint("Diameter", 0, Q("0.194 in")))
sketch16.addConstraint(Sketcher.Constraint("DistanceX", -1, 1, 0, 3, Q("2 in")))
sketch16.addConstraint(Sketcher.Constraint("DistanceY", 0, 3, -1, 1, Q("0.375 in")))
sketch16.setExpression("Constraints[0]", "Params.sketch16_diameter")
pocket15 = doc.addObject("PartDesign::Pocket", "Pocket014")
body.addObject(pocket15)
pocket15.Profile = sketch16
pocket15.Type = "UpToFirst"

# Sketch on YZ plane
sketch17 = doc.addObject("Sketcher::SketchObject", "Sketch016")
body.addObject(sketch17)
sketch17.AttachmentSupport = (doc.YZ_Plane, [""])
sketch17.MapMode = "FlatFace"
sketch17.AttachmentOffset = App.Placement(V(0, 0, 1.875 * 25.4), App.Rotation())
sketch17.addGeometry(Part.Circle(V(114.3, -9.525, 0), V(0, 0, 1), 2.4638), False)
sketch17.addConstraint(Sketcher.Constraint("Diameter", 0, Q("0.194 in")))
sketch17.addConstraint(Sketcher.Constraint("DistanceX", -1, 1, 0, 3, Q("4.5 in")))
sketch17.addConstraint(Sketcher.Constraint("DistanceY", 0, 3, -1, 1, Q("0.375 in")))
sketch17.setExpression("Constraints[0]", "Params.sketch17_diameter")
pocket16 = doc.addObject("PartDesign::Pocket", "Pocket015")
body.addObject(pocket16)
pocket16.Profile = sketch17
pocket16.Type = "UpToFirst"

# Sketch on YZ plane
sketch18 = doc.addObject("Sketcher::SketchObject", "Sketch017")
body.addObject(sketch18)
sketch18.AttachmentSupport = (doc.YZ_Plane, [""])
sketch18.MapMode = "FlatFace"
sketch18.AttachmentOffset = App.Placement(V(0, 0, 1.875 * 25.4), App.Rotation())
sketch18.addGeometry(Part.Circle(V(177.8, -9.525, 0), V(0, 0, 1), 2.4638), False)
sketch18.addConstraint(Sketcher.Constraint("Diameter", 0, Q("0.194 in")))
sketch18.addConstraint(Sketcher.Constraint("DistanceX", -1, 1, 0, 3, Q("7 in")))
sketch18.addConstraint(Sketcher.Constraint("DistanceY", 0, 3, -1, 1, Q("0.375 in")))
sketch18.setExpression("Constraints[0]", "Params.sketch18_diameter")
pocket17 = doc.addObject("PartDesign::Pocket", "Pocket016")
body.addObject(pocket17)
pocket17.Profile = sketch18
pocket17.Type = "UpToFirst"

# Sketch on YZ plane
sketch19 = doc.addObject("Sketcher::SketchObject", "Sketch018")
body.addObject(sketch19)
sketch19.AttachmentSupport = (doc.YZ_Plane, [""])
sketch19.MapMode = "FlatFace"
sketch19.AttachmentOffset = App.Placement(V(0, 0, 1.875 * 25.4), App.Rotation())
sketch19.addGeometry(Part.Circle(V(241.3, -9.525, 0), V(0, 0, 1), 2.4638), False)
sketch19.addConstraint(Sketcher.Constraint("Diameter", 0, Q("0.194 in")))
sketch19.addConstraint(Sketcher.Constraint("DistanceX", -1, 1, 0, 3, Q("9.5 in")))
sketch19.addConstraint(Sketcher.Constraint("DistanceY", 0, 3, -1, 1, Q("0.375 in")))
sketch19.setExpression("Constraints[0]", "Params.sketch19_diameter")
pocket18 = doc.addObject("PartDesign::Pocket", "Pocket017")
body.addObject(pocket18)
pocket18.Profile = sketch19
pocket18.Type = "UpToFirst"

# Sketch on YZ plane
sketch20 = doc.addObject("Sketcher::SketchObject", "Sketch019")
body.addObject(sketch20)
sketch20.AttachmentSupport = (doc.YZ_Plane, [""])
sketch20.MapMode = "FlatFace"
sketch20.AttachmentOffset = App.Placement(V(0, 0, 1.875 * 25.4), App.Rotation())
sketch20.addGeometry(Part.Circle(V(304.8, -9.525, 0), V(0, 0, 1), 2.4638), False)
sketch20.addConstraint(Sketcher.Constraint("Diameter", 0, Q("0.194 in")))
sketch20.addConstraint(Sketcher.Constraint("DistanceX", -1, 1, 0, 3, Q("12 in")))
sketch20.addConstraint(Sketcher.Constraint("DistanceY", 0, 3, -1, 1, Q("0.375 in")))
sketch20.setExpression("Constraints[0]", "Params.sketch20_diameter")
pocket19 = doc.addObject("PartDesign::Pocket", "Pocket018")
body.addObject(pocket19)
pocket19.Profile = sketch20
pocket19.Type = "UpToFirst"

# Sketch on YZ plane
sketch21 = doc.addObject("Sketcher::SketchObject", "Sketch020")
body.addObject(sketch21)
sketch21.AttachmentSupport = (doc.YZ_Plane, [""])
sketch21.MapMode = "FlatFace"
sketch21.AttachmentOffset = App.Placement(V(0, 0, 1.875 * 25.4), App.Rotation())
sketch21.addGeometry(Part.Circle(V(368.3, -9.525, 0), V(0, 0, 1), 2.4638), False)
sketch21.addConstraint(Sketcher.Constraint("Diameter", 0, Q("0.194 in")))
sketch21.addConstraint(Sketcher.Constraint("DistanceX", -1, 1, 0, 3, Q("14.5 in")))
sketch21.addConstraint(Sketcher.Constraint("DistanceY", 0, 3, -1, 1, Q("0.375 in")))
sketch21.setExpression("Constraints[0]", "Params.sketch21_diameter")
pocket20 = doc.addObject("PartDesign::Pocket", "Pocket019")
body.addObject(pocket20)
pocket20.Profile = sketch21
pocket20.Type = "UpToFirst"

# Sketch on YZ plane
sketch22 = doc.addObject("Sketcher::SketchObject", "Sketch021")
body.addObject(sketch22)
sketch22.AttachmentSupport = (doc.YZ_Plane, [""])
sketch22.MapMode = "FlatFace"
sketch22.AttachmentOffset = App.Placement(V(0, 0, 1.875 * 25.4), App.Rotation())
sketch22.addGeometry(Part.Circle(V(431.8, -9.525, 0), V(0, 0, 1), 2.4638), False)
sketch22.addConstraint(Sketcher.Constraint("Diameter", 0, Q("0.194 in")))
sketch22.addConstraint(Sketcher.Constraint("DistanceX", -1, 1, 0, 3, Q("17 in")))
sketch22.addConstraint(Sketcher.Constraint("DistanceY", 0, 3, -1, 1, Q("0.375 in")))
sketch22.setExpression("Constraints[0]", "Params.sketch22_diameter")
pocket21 = doc.addObject("PartDesign::Pocket", "Pocket020")
body.addObject(pocket21)
pocket21.Profile = sketch22
pocket21.Type = "UpToFirst"

# Sketch on YZ plane
sketch23 = doc.addObject("Sketcher::SketchObject", "Sketch022")
body.addObject(sketch23)
sketch23.AttachmentSupport = (doc.YZ_Plane, [""])
sketch23.MapMode = "FlatFace"
sketch23.AttachmentOffset = App.Placement(V(0, 0, 1.875 * 25.4), App.Rotation())
sketch23.addGeometry(Part.Circle(V(495.3, -9.525, 0), V(0, 0, 1), 2.4638), False)
sketch23.addConstraint(Sketcher.Constraint("Diameter", 0, Q("0.194 in")))
sketch23.addConstraint(Sketcher.Constraint("DistanceX", -1, 1, 0, 3, Q("19.5 in")))
sketch23.addConstraint(Sketcher.Constraint("DistanceY", 0, 3, -1, 1, Q("0.375 in")))
sketch23.setExpression("Constraints[0]", "Params.sketch23_diameter")
pocket22 = doc.addObject("PartDesign::Pocket", "Pocket021")
body.addObject(pocket22)
pocket22.Profile = sketch23
pocket22.Type = "UpToFirst"

# Sketch on YZ plane
sketch24 = doc.addObject("Sketcher::SketchObject", "Sketch023")
body.addObject(sketch24)
sketch24.AttachmentSupport = (doc.YZ_Plane, [""])
sketch24.MapMode = "FlatFace"
sketch24.AttachmentOffset = App.Placement(V(0, 0, 1.875 * 25.4), App.Rotation())
sketch24.addGeometry(Part.Circle(V(558.8, -9.525, 0), V(0, 0, 1), 2.4638), False)
sketch24.addConstraint(Sketcher.Constraint("Diameter", 0, Q("0.194 in")))
sketch24.addConstraint(Sketcher.Constraint("DistanceX", -1, 1, 0, 3, Q("22 in")))
sketch24.addConstraint(Sketcher.Constraint("DistanceY", 0, 3, -1, 1, Q("0.375 in")))
sketch24.setExpression("Constraints[0]", "Params.sketch24_diameter")
pocket23 = doc.addObject("PartDesign::Pocket", "Pocket022")
body.addObject(pocket23)
pocket23.Profile = sketch24
pocket23.Type = "UpToFirst"

# Sketch on YZ plane
sketch25 = doc.addObject("Sketcher::SketchObject", "Sketch024")
body.addObject(sketch25)
sketch25.AttachmentSupport = (doc.YZ_Plane, [""])
sketch25.MapMode = "FlatFace"
sketch25.AttachmentOffset = App.Placement(V(0, 0, 1.875 * 25.4), App.Rotation())
sketch25.addGeometry(Part.Circle(V(762, -9.525, 0), V(0, 0, 1), 2.4638), False)
sketch25.addConstraint(Sketcher.Constraint("Diameter", 0, Q("0.194 in")))
sketch25.addConstraint(Sketcher.Constraint("DistanceX", -1, 1, 0, 3, Q("30 in")))
sketch25.addConstraint(Sketcher.Constraint("DistanceY", 0, 3, -1, 1, Q("0.375 in")))
sketch25.setExpression("Constraints[0]", "Params.sketch25_diameter")
pocket24 = doc.addObject("PartDesign::Pocket", "Pocket023")
body.addObject(pocket24)
pocket24.Profile = sketch25
pocket24.Type = "UpToFirst"

# Sketch on YZ plane
sketch26 = doc.addObject("Sketcher::SketchObject", "Sketch025")
body.addObject(sketch26)
sketch26.AttachmentSupport = (doc.YZ_Plane, [""])
sketch26.MapMode = "FlatFace"
sketch26.AttachmentOffset = App.Placement(V(0, 0, 1.875 * 25.4), App.Rotation())
sketch26.addGeometry(Part.Circle(V(723.9, -9.525, 0), V(0, 0, 1), 2.4638), False)
sketch26.addConstraint(Sketcher.Constraint("Diameter", 0, Q("0.194 in")))
sketch26.addConstraint(Sketcher.Constraint("DistanceX", -1, 1, 0, 3, Q("28.5 in")))
sketch26.addConstraint(Sketcher.Constraint("DistanceY", 0, 3, -1, 1, Q("0.375 in")))
sketch26.setExpression("Constraints[0]", "Params.sketch26_diameter")
pocket25 = doc.addObject("PartDesign::Pocket", "Pocket024")
body.addObject(pocket25)
pocket25.Profile = sketch26
pocket25.Type = "UpToFirst"

doc.recompute()
